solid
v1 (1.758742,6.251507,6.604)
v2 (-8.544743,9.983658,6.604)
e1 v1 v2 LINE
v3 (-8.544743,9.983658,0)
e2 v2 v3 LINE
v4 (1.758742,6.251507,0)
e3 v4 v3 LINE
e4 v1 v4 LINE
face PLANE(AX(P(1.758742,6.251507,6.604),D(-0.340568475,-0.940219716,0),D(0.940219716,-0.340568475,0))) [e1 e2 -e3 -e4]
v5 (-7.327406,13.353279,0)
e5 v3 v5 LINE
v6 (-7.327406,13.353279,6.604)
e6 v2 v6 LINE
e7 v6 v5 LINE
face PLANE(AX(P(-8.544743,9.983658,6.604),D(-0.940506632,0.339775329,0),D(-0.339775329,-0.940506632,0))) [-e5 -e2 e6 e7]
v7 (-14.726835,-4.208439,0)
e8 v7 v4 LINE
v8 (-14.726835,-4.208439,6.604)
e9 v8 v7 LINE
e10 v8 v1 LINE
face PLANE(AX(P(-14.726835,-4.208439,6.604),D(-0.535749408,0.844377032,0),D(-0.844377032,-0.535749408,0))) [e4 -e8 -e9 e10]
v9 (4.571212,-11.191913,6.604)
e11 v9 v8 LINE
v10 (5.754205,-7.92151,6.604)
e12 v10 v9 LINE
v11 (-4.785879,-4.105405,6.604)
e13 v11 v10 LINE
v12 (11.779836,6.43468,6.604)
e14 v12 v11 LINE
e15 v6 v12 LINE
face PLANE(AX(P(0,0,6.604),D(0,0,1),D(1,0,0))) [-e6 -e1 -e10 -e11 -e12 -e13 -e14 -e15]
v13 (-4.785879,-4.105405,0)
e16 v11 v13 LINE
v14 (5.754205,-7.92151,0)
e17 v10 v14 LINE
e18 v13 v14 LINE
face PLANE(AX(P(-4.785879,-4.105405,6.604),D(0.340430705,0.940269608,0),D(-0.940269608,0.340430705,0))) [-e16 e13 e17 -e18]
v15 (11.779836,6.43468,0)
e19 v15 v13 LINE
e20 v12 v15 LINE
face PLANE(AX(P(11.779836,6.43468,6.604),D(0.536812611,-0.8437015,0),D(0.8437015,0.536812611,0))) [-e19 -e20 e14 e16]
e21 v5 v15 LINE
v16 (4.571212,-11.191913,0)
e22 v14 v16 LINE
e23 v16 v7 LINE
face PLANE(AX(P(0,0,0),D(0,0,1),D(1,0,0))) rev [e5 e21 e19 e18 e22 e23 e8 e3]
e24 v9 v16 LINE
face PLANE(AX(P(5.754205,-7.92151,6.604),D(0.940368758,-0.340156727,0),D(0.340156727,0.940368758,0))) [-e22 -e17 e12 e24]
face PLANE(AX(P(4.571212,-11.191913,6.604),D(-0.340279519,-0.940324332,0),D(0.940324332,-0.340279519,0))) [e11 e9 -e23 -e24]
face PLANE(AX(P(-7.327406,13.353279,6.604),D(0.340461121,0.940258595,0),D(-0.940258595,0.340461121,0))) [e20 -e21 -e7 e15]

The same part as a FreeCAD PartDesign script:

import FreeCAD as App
import Part
import Sketcher
from FreeCAD import Vector
Q = App.Units.Quantity

doc = App.newDocument("Part")
params = doc.addObject("Spreadsheet::Sheet", "Params")
for row, (alias, value) in enumerate([
    ("pad1_length", "0.26 in"),
], start=1):
    params.set(f"A{row}", alias)
    params.set(f"B{row}", "=" + value)
    params.setAlias(f"B{row}", alias)

body = doc.addObject("PartDesign::Body", "Body")

# Sketch on XY plane
sketch1 = doc.addObject("Sketcher::SketchObject", "Sketch")
body.addObject(sketch1)
sketch1.AttachmentSupport = (doc.XY_Plane, [""])
sketch1.MapMode = "FlatFace"
sketch1.addGeometry([
    Part.LineSegment(Vector(11.8, 6.4, 0), Vector(-7.3, 13.4, 0)),  # 0
    Part.LineSegment(Vector(-7.3, 13.4, 0), Vector(-8.5, 10, 0)),  # 1
    Part.LineSegment(Vector(-8.5, 10, 0), Vector(1.8, 6.3, 0)),  # 2
    Part.LineSegment(Vector(1.8, 6.3, 0), Vector(-14.7, -4.2, 0)),  # 3
    Part.LineSegment(Vector(-14.7, -4.2, 0), Vector(4.6, -11.2, 0)),  # 4
    Part.LineSegment(Vector(4.6, -11.2, 0), Vector(5.8, -7.9, 0)),  # 5
    Part.LineSegment(Vector(5.8, -7.9, 0), Vector(-4.8, -4.1, 0)),  # 6
    Part.LineSegment(Vector(-4.8, -4.1, 0), Vector(11.8, 6.4, 0)),  # 7
], False)
sketch1.addConstraint([
    Sketcher.Constraint("Coincident", 0, 2, 1, 1),
    Sketcher.Constraint("Coincident", 1, 2, 2, 1),
    Sketcher.Constraint("Coincident", 2, 2, 3, 1),
    Sketcher.Constraint("Coincident", 3, 2, 4, 1),
    Sketcher.Constraint("Coincident", 4, 2, 5, 1),
    Sketcher.Constraint("Coincident", 5, 2, 6, 1),
    Sketcher.Constraint("Coincident", 6, 2, 7, 1),
    Sketcher.Constraint("Coincident", 7, 2, 0, 1),
    Sketcher.Constraint("DistanceY", 7, 2, 0, 2, Q("6.9186 mm")),
    Sketcher.Constraint("Distance", 6, Q("11.20964 mm")),
    Sketcher.Constraint("Distance", 7, Q("19.634569 mm")),
    Sketcher.Constraint("DistanceY", -1, 1, 0, 2, Q("13.353279 mm")),
    Sketcher.Constraint("DistanceY", 3, 2, -1, 1, Q("4.208439 mm")),
    Sketcher.Constraint("DistanceY", 5, 2, -1, 1, Q("7.92151 mm")),
    Sketcher.Constraint("DistanceX", 6, 2, -1, 1, Q("4.785879 mm")),
    Sketcher.Constraint("DistanceY", 1, 2, 0, 2, Q("3.369621 mm")),
    Sketcher.Constraint("DistanceY", 2, 2, 1, 2, Q("3.732151 mm")),
    Sketcher.Constraint("DistanceX", 3, 2, 1, 2, Q("6.182091 mm")),
    Sketcher.Constraint("DistanceX", 3, 2, 0, 2, Q("7.399429 mm")),
    Sketcher.Constraint("DistanceX", 2, 2, 4, 2, Q("2.81247 mm")),
    Sketcher.Constraint("DistanceY", 4, 2, 2, 2, Q("17.443419 mm")),
    Sketcher.Constraint("DistanceX", 3, 2, 5, 2, Q("20.48104 mm")),
    Sketcher.Constraint("DistanceX", 6, 2, 4, 2, Q("9.357091 mm")),
    Sketcher.Constraint("DistanceY", 4, 2, 6, 2, Q("7.086508 mm")),
])
pad1 = doc.addObject("PartDesign::Pad", "Pad")
body.addObject(pad1)
pad1.Profile = sketch1
pad1.setExpression("Length", "Params.pad1_length")

doc.recompute()
